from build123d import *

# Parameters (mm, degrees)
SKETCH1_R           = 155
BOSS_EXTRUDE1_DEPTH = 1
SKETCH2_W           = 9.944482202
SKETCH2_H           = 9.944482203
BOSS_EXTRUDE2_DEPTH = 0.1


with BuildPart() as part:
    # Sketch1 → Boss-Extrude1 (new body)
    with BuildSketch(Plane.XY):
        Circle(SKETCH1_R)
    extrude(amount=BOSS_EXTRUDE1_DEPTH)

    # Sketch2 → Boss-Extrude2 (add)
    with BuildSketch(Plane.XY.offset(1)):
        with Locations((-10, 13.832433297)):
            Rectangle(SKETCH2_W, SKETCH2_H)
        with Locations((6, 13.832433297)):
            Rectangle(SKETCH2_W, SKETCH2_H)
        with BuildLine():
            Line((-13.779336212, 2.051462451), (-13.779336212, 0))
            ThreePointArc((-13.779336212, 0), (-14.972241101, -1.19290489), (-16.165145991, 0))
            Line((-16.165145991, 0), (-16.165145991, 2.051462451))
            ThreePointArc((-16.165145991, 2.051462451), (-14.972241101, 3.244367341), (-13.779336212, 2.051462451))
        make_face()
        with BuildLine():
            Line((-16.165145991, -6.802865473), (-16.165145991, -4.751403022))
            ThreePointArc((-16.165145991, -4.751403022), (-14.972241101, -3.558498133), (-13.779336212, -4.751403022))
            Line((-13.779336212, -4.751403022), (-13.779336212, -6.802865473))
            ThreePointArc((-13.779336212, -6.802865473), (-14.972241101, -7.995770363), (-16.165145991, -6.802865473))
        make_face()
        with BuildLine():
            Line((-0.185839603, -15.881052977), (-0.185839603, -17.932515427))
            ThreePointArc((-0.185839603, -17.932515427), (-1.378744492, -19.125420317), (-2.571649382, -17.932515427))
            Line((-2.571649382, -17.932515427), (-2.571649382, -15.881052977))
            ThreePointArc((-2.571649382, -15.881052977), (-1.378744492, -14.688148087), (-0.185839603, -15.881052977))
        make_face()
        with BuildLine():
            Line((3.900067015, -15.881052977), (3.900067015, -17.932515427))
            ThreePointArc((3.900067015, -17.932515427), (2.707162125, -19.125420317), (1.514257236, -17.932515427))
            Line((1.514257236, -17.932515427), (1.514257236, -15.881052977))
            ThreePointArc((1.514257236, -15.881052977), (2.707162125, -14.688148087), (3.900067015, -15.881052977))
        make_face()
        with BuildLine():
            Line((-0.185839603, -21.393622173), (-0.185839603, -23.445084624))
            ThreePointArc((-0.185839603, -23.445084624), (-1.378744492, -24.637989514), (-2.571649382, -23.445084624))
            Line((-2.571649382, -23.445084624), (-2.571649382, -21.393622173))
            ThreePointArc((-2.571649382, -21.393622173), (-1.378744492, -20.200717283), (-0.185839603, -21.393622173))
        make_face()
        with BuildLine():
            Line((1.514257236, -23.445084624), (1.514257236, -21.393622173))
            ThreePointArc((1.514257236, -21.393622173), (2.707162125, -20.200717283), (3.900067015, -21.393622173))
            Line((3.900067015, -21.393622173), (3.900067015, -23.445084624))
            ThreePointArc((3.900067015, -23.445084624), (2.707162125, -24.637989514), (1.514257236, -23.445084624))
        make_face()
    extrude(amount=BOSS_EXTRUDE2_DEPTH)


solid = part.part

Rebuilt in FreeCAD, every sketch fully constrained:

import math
import FreeCAD as App
import Part
import Sketcher

V = App.Vector
Q = App.Units.Quantity


def add_polygon(sketch, points):
    """Adds a closed chain of lines whose ends are joined by coincident constraints."""
    first, n = sketch.GeometryCount, len(points)
    for a, b in zip(points, points[1:] + points[:1]):
        sketch.addGeometry(Part.LineSegment(App.Vector(*a, 0), App.Vector(*b, 0)), False)
    for i in range(n):
        sketch.addConstraint(Sketcher.Constraint("Coincident", first + i, 2, first + (i + 1) % n, 1))

doc = App.newDocument("Part")
body = doc.addObject("PartDesign::Body", "Body")

sketch1 = body.newObject("Sketcher::SketchObject", "Sketch")
sketch1.AttachmentSupport = (doc.getObject("XY_Plane"), [""])
sketch1.MapMode = "FlatFace"
sketch1.addGeometry(Part.Circle(V(0, 0, 0), V(0, 0, 1), 155), False)
sketch1.addConstraint(Sketcher.Constraint("Coincident", 0, 3, -1, 1))
sketch1.addConstraint(Sketcher.Constraint("Diameter", 0, Q("310 mm")))
pad1 = body.newObject("PartDesign::Pad", "Pad")
pad1.Profile = sketch1
pad1.Length = 1

sketch2 = body.newObject("Sketcher::SketchObject", "Sketch001")
sketch2.AttachmentSupport = (doc.getObject("XY_Plane"), [""])
sketch2.MapMode = "FlatFace"
sketch2.AttachmentOffset = App.Placement(V(0, 0, 1), App.Rotation())
add_polygon(sketch2, [(-15, 18.8), (-15, 8.9), (-5, 8.9), (-5, 18.8)])
add_polygon(sketch2, [(1, 18.8), (1, 8.9), (11, 8.9), (11, 18.8)])
sketch2.addGeometry(Part.LineSegment(V(-13.8, 0, 0), V(-13.8, 2.1, 0)), False)
sketch2.addGeometry(Part.ArcOfCircle(Part.Circle(V(-15, 2.1, 0), V(0, 0, 1), 1.2), math.radians(0), math.radians(180)), False)
sketch2.addGeometry(Part.LineSegment(V(-16.2, 2.1, 0), V(-16.2, 0, 0)), False)
sketch2.addGeometry(Part.ArcOfCircle(Part.Circle(V(-15, 0, 0), V(0, 0, 1), 1.2), math.radians(180), math.radians(360)), False)
sketch2.addGeometry(Part.LineSegment(V(-16.2, -4.8, 0), V(-16.2, -6.8, 0)), False)
sketch2.addGeometry(Part.ArcOfCircle(Part.Circle(V(-15, -6.8, 0), V(0, 0, 1), 1.2), math.radians(180), math.radians(360)), False)
sketch2.addGeometry(Part.LineSegment(V(-13.8, -6.8, 0), V(-13.8, -4.8, 0)), False)
sketch2.addGeometry(Part.ArcOfCircle(Part.Circle(V(-15, -4.8, 0), V(0, 0, 1), 1.2), math.radians(0), math.radians(180)), False)
sketch2.addGeometry(Part.LineSegment(V(-0.2, -17.9, 0), V(-0.2, -15.9, 0)), False)
sketch2.addGeometry(Part.ArcOfCircle(Part.Circle(V(-1.4, -15.9, 0), V(0, 0, 1), 1.2), math.radians(0), math.radians(180)), False)
sketch2.addGeometry(Part.LineSegment(V(-2.6, -15.9, 0), V(-2.6, -17.9, 0)), False)
sketch2.addGeometry(Part.ArcOfCircle(Part.Circle(V(-1.4, -17.9, 0), V(0, 0, 1), 1.2), math.radians(180), math.radians(360)), False)
sketch2.addGeometry(Part.LineSegment(V(3.9, -17.9, 0), V(3.9, -15.9, 0)), False)
sketch2.addGeometry(Part.ArcOfCircle(Part.Circle(V(2.7, -15.9, 0), V(0, 0, 1), 1.2), math.radians(0), math.radians(180)), False)
sketch2.addGeometry(Part.LineSegment(V(1.5, -15.9, 0), V(1.5, -17.9, 0)), False)
sketch2.addGeometry(Part.ArcOfCircle(Part.Circle(V(2.7, -17.9, 0), V(0, 0, 1), 1.2), math.radians(180), math.radians(360)), False)
sketch2.addGeometry(Part.LineSegment(V(-0.2, -23.4, 0), V(-0.2, -21.4, 0)), False)
sketch2.addGeometry(Part.ArcOfCircle(Part.Circle(V(-1.4, -21.4, 0), V(0, 0, 1), 1.2), math.radians(0), math.radians(180)), False)
sketch2.addGeometry(Part.LineSegment(V(-2.6, -21.4, 0), V(-2.6, -23.4, 0)), False)
sketch2.addGeometry(Part.ArcOfCircle(Part.Circle(V(-1.4, -23.4, 0), V(0, 0, 1), 1.2), math.radians(180), math.radians(360)), False)
sketch2.addGeometry(Part.LineSegment(V(1.5, -21.4, 0), V(1.5, -23.4, 0)), False)
sketch2.addGeometry(Part.ArcOfCircle(Part.Circle(V(2.7, -23.4, 0), V(0, 0, 1), 1.2), math.radians(180), math.radians(360)), False)
sketch2.addGeometry(Part.LineSegment(V(3.9, -23.4, 0), V(3.9, -21.4, 0)), False)
sketch2.addGeometry(Part.ArcOfCircle(Part.Circle(V(2.7, -21.4, 0), V(0, 0, 1), 1.2), math.radians(0), math.radians(180)), False)
sketch2.addConstraint(Sketcher.Constraint("Tangent", 8, 2, 9, 1))
sketch2.addConstraint(Sketcher.Constraint("Tangent", 9, 2, 10, 1))
sketch2.addConstraint(Sketcher.Constraint("Tangent", 10, 2, 11, 1))
sketch2.addConstraint(Sketcher.Constraint("Tangent", 11, 2, 8, 1))
sketch2.addConstraint(Sketcher.Constraint("Tangent", 12, 2, 13, 1))
sketch2.addConstraint(Sketcher.Constraint("Tangent", 13, 2, 14, 1))
sketch2.addConstraint(Sketcher.Constraint("Tangent", 14, 2, 15, 1))
sketch2.addConstraint(Sketcher.Constraint("Tangent", 15, 2, 12, 1))
sketch2.addConstraint(Sketcher.Constraint("Tangent", 16, 2, 17, 1))
sketch2.addConstraint(Sketcher.Constraint("Tangent", 17, 2, 18, 1))
sketch2.addConstraint(Sketcher.Constraint("Tangent", 18, 2, 19, 1))
sketch2.addConstraint(Sketcher.Constraint("Tangent", 19, 2, 16, 1))
sketch2.addConstraint(Sketcher.Constraint("Tangent", 20, 2, 21, 1))
sketch2.addConstraint(Sketcher.Constraint("Tangent", 21, 2, 22, 1))
sketch2.addConstraint(Sketcher.Constraint("Tangent", 22, 2, 23, 1))
sketch2.addConstraint(Sketcher.Constraint("Tangent", 23, 2, 20, 1))
sketch2.addConstraint(Sketcher.Constraint("Tangent", 24, 2, 25, 1))
sketch2.addConstraint(Sketcher.Constraint("Tangent", 25, 2, 26, 1))
sketch2.addConstraint(Sketcher.Constraint("Tangent", 26, 2, 27, 1))
sketch2.addConstraint(Sketcher.Constraint("Tangent", 27, 2, 24, 1))
sketch2.addConstraint(Sketcher.Constraint("Tangent", 28, 2, 29, 1))
sketch2.addConstraint(Sketcher.Constraint("Tangent", 29, 2, 30, 1))
sketch2.addConstraint(Sketcher.Constraint("Tangent", 30, 2, 31, 1))
sketch2.addConstraint(Sketcher.Constraint("Tangent", 31, 2, 28, 1))
sketch2.addConstraint(Sketcher.Constraint("Vertical", 0))
sketch2.addConstraint(Sketcher.Constraint("Horizontal", 1))
sketch2.addConstraint(Sketcher.Constraint("Vertical", 2))
sketch2.addConstraint(Sketcher.Constraint("Horizontal", 3))
sketch2.addConstraint(Sketcher.Constraint("Vertical", 4))
sketch2.addConstraint(Sketcher.Constraint("Horizontal", 5))
sketch2.addConstraint(Sketcher.Constraint("Vertical", 6))
sketch2.addConstraint(Sketcher.Constraint("Horizontal", 7))
sketch2.addConstraint(Sketcher.Constraint("Vertical", 8))
sketch2.addConstraint(Sketcher.Constraint("Vertical", 10))
sketch2.addConstraint(Sketcher.Constraint("Vertical", 12))
sketch2.addConstraint(Sketcher.Constraint("Vertical", 14))
sketch2.addConstraint(Sketcher.Constraint("Vertical", 16))
sketch2.addConstraint(Sketcher.Constraint("Vertical", 18))
sketch2.addConstraint(Sketcher.Constraint("Vertical", 20))
sketch2.addConstraint(Sketcher.Constraint("Vertical", 22))
sketch2.addConstraint(Sketcher.Constraint("Vertical", 24))
sketch2.addConstraint(Sketcher.Constraint("Vertical", 26))
sketch2.addConstraint(Sketcher.Constraint("Vertical", 28))
sketch2.addConstraint(Sketcher.Constraint("Vertical", 30))
sketch2.addConstraint(Sketcher.Constraint("Equal", 11, 13))
sketch2.addConstraint(Sketcher.Constraint("Equal", 15, 17))
sketch2.addConstraint(Sketcher.Constraint("Equal", 19, 21))
sketch2.addConstraint(Sketcher.Constraint("Equal", 23, 25))
sketch2.addConstraint(Sketcher.Constraint("Equal", 27, 29))
sketch2.addConstraint(Sketcher.Constraint("PointOnObject", 11, 3, -1))
sketch2.addConstraint(Sketcher.Constraint("Horizontal", 17, 3, 21, 3))
sketch2.addConstraint(Sketcher.Constraint("Horizontal", 19, 3, 23, 3))
sketch2.addConstraint(Sketcher.Constraint("Horizontal", 27, 3, 29, 3))
sketch2.addConstraint(Sketcher.Constraint("Horizontal", 25, 3, 31, 3))
sketch2.addConstraint(Sketcher.Constraint("Horizontal", 1, 2, 4, 2))
sketch2.addConstraint(Sketcher.Constraint("Horizontal", 3, 2, 6, 2))
sketch2.addConstraint(Sketcher.Constraint("Vertical", 11, 3, 13, 3))
sketch2.addConstraint(Sketcher.Constraint("Vertical", 19, 3, 25, 3))
sketch2.addConstraint(Sketcher.Constraint("Vertical", 23, 3, 29, 3))
sketch2.addConstraint(Sketcher.Constraint("Vertical", 15, 3, 0, 2))
sketch2.addConstraint(Sketcher.Constraint("Equal", 3, 5))
sketch2.addConstraint(Sketcher.Constraint("Equal", 7, 0))
sketch2.addConstraint(Sketcher.Constraint("Equal", 10, 12))
sketch2.addConstraint(Sketcher.Constraint("Equal", 14, 16))
sketch2.addConstraint(Sketcher.Constraint("Equal", 22, 24))
sketch2.addConstraint(Sketcher.Constraint("DistanceX", 0, 2, 4, 2, Q("16 mm")))
sketch2.addConstraint(Sketcher.Constraint("Radius", 9, Q("1.192905 mm")))
sketch2.addConstraint(Sketcher.Constraint("DistanceX", 16, 2, 21, 3, Q("2.893002 mm")))
sketch2.addConstraint(Sketcher.Constraint("DistanceX", 1, 1, 1, 2, Q("9.944482 mm")))
sketch2.addConstraint(Sketcher.Constraint("DistanceY", 8, 1, 8, 2, Q("2.051462 mm")))
sketch2.addConstraint(Sketcher.Constraint("DistanceX", 9, 3, -1, 1, Q("14.972241 mm")))
sketch2.addConstraint(Sketcher.Constraint("DistanceX", 16, 2, -1, 1, Q("0.18584 mm")))
sketch2.addConstraint(Sketcher.Constraint("DistanceY", 17, 3, 15, 3, Q("11.12965 mm")))
sketch2.addConstraint(Sketcher.Constraint("DistanceY", 25, 3, 17, 3, Q("5.512569 mm")))
sketch2.addConstraint(Sketcher.Constraint("DistanceY", 9, 3, 0, 2, Q("6.80873 mm")))
sketch2.addConstraint(Sketcher.Constraint("DistanceY", 13, 3, -1, 1, Q("6.802865 mm")))
pad2 = body.newObject("PartDesign::Pad", "Pad001")
pad2.Profile = sketch2
pad2.Length = 0.1

doc.recompute()
